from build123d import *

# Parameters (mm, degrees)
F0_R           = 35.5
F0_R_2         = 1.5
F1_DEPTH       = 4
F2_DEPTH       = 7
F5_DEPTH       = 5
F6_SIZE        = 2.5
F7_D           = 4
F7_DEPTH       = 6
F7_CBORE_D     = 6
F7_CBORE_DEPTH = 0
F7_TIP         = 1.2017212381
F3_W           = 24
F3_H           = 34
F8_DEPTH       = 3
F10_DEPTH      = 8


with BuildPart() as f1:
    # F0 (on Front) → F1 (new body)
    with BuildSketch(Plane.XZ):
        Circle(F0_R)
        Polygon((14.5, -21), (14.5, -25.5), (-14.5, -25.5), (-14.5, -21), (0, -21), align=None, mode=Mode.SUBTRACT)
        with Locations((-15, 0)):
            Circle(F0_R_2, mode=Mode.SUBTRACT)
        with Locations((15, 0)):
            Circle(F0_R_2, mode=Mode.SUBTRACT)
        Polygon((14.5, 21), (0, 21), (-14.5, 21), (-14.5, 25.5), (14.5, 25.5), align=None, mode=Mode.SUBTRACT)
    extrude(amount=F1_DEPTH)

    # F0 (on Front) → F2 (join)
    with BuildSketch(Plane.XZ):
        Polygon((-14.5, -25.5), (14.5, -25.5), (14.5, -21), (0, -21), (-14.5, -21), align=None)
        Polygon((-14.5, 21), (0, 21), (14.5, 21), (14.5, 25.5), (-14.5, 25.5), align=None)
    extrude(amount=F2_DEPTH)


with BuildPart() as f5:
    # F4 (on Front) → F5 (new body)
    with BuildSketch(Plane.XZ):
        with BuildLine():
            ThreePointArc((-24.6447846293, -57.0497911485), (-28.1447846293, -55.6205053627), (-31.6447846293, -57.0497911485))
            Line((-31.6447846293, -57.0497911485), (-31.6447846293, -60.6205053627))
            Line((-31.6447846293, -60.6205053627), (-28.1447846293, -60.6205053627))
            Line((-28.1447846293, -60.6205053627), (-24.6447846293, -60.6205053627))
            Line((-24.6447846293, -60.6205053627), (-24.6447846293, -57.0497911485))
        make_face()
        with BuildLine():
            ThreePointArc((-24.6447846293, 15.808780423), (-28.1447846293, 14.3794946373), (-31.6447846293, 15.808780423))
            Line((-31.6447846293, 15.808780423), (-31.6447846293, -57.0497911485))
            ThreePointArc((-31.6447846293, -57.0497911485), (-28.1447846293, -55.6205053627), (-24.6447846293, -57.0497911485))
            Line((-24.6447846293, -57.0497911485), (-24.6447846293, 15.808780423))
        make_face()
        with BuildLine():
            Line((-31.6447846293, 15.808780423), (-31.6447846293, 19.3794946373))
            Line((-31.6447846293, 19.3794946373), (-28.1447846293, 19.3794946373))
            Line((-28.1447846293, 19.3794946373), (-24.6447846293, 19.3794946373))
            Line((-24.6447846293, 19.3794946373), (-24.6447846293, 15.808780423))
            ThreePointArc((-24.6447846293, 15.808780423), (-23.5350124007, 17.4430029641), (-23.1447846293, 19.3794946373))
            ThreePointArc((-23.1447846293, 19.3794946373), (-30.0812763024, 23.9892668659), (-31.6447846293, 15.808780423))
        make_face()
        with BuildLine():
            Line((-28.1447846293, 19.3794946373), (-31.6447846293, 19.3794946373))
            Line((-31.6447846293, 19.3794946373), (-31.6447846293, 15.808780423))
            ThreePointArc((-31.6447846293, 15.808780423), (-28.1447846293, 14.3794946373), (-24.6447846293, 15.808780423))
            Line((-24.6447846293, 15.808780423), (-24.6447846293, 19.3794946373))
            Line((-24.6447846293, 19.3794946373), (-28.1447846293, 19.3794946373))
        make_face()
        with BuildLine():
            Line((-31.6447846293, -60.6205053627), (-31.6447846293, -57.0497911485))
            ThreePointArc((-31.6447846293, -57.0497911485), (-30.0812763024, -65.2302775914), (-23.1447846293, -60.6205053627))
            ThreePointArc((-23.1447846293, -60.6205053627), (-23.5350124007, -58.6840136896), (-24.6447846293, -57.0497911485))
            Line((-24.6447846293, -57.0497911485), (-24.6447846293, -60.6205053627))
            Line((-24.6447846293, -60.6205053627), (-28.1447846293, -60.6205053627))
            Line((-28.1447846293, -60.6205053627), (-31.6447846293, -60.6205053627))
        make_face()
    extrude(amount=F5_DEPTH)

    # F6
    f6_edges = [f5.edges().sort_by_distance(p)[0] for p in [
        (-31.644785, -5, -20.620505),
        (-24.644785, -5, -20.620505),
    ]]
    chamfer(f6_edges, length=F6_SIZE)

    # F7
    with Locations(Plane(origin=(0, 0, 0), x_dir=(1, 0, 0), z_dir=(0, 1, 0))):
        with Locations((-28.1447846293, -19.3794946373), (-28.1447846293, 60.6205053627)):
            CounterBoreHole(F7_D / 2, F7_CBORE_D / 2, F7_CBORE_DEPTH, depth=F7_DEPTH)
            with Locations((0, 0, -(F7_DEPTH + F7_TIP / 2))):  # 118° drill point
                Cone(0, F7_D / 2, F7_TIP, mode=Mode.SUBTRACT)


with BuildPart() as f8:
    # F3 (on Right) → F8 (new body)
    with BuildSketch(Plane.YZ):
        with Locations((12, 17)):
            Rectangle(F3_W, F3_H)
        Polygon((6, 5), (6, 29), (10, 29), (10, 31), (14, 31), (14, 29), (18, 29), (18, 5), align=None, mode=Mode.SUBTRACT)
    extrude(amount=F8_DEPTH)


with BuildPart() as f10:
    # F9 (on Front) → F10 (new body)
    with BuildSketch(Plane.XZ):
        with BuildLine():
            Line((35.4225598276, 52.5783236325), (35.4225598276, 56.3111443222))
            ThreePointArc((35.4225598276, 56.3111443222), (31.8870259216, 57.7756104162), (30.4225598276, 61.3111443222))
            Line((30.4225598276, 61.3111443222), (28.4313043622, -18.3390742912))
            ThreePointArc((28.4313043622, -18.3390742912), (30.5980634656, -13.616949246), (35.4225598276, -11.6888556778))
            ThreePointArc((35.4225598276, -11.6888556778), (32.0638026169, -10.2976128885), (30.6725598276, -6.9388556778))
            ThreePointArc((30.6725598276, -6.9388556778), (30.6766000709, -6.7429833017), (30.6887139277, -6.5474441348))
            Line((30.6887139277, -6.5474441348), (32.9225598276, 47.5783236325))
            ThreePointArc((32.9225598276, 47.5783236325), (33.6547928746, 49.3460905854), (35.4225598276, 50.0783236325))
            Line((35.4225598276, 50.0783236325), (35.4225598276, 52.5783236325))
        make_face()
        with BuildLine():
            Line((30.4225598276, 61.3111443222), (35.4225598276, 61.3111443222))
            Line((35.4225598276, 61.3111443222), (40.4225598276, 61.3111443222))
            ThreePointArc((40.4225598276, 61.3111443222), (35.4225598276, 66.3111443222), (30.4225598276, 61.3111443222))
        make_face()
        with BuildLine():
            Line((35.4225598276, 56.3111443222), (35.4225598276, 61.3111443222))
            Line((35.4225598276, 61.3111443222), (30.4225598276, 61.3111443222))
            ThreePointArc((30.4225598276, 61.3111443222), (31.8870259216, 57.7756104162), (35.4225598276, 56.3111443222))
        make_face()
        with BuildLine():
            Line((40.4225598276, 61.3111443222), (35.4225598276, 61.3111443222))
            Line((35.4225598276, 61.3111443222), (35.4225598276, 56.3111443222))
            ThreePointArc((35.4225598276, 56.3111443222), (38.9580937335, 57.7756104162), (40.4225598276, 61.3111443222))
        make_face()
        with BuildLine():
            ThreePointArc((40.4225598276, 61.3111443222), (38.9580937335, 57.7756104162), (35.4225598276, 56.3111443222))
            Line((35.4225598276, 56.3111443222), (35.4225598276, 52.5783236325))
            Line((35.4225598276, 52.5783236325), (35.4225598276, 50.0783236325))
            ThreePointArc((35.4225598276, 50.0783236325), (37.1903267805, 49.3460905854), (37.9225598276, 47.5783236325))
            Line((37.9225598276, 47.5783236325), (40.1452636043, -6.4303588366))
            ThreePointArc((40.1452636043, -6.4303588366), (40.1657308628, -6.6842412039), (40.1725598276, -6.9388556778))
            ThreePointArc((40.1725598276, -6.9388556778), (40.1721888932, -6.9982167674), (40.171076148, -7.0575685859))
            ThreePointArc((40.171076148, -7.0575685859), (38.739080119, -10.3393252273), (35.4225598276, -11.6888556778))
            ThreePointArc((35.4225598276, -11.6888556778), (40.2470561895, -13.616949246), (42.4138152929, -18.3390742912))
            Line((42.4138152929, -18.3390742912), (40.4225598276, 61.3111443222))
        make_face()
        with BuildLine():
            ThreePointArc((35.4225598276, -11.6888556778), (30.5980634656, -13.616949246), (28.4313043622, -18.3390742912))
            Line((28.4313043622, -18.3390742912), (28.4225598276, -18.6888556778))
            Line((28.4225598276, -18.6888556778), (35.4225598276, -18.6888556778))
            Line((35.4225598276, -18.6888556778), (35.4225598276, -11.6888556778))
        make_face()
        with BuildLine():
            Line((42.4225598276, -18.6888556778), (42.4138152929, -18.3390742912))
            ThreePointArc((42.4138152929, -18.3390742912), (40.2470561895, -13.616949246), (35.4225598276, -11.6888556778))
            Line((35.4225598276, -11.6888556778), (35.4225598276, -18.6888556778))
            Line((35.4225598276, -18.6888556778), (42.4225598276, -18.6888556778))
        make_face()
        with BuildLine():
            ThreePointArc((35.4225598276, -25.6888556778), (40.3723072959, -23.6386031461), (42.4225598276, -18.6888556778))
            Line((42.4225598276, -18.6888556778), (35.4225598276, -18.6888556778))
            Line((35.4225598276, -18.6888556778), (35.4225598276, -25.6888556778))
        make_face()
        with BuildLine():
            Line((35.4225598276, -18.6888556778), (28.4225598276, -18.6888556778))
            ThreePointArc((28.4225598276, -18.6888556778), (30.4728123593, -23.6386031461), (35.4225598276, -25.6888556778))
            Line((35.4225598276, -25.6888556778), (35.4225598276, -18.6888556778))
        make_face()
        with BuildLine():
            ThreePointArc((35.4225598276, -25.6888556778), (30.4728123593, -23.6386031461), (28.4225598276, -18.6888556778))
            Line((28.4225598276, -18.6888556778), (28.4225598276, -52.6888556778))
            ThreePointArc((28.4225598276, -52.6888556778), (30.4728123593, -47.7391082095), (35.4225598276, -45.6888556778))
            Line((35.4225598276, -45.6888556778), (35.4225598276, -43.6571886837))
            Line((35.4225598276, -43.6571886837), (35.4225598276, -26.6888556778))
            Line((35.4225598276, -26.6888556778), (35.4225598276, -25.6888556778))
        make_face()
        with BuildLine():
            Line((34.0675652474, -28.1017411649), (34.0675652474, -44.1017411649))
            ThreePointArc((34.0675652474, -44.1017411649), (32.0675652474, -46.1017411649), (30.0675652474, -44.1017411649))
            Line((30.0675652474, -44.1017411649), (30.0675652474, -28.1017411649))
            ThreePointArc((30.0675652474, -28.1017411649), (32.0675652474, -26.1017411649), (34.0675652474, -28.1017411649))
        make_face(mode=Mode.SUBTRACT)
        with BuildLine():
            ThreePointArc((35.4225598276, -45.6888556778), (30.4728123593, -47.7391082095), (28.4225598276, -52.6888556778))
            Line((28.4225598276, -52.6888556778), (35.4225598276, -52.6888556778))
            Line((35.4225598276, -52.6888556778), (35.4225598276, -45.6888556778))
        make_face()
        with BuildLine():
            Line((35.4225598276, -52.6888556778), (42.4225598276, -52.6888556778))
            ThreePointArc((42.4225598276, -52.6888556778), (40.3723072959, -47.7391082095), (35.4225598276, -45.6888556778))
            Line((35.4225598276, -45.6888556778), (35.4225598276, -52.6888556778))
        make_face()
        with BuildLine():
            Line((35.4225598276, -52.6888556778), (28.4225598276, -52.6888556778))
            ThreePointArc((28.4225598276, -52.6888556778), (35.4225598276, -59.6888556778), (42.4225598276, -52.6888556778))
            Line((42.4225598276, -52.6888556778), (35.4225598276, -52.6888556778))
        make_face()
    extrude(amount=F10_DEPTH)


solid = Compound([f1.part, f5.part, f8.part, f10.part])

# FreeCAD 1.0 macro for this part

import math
import FreeCAD as App
import Part
import Sketcher
from FreeCAD import Vector
Q = App.Units.Quantity


def edges_at(feature, points):
    """Names of the edges that pass closest to the given points."""
    edges = feature.Shape.Edges
    near = lambda p: min(range(len(edges)), key=lambda i: edges[i].distToShape(Part.Vertex(*p))[0])
    return sorted({f"Edge{near(p) + 1}" for p in points})


def add_polygon(sketch, points):
    """Adds a closed chain of lines whose ends are joined by coincident constraints."""
    first, n = sketch.GeometryCount, len(points)
    for a, b in zip(points, points[1:] + points[:1]):
        sketch.addGeometry(Part.LineSegment(App.Vector(*a, 0), App.Vector(*b, 0)), False)
    for i in range(n):
        sketch.addConstraint(Sketcher.Constraint("Coincident", first + i, 2, first + (i + 1) % n, 1))

doc = App.newDocument("Part")
body = doc.addObject("PartDesign::Body", "Body")

sketch1 = body.newObject("Sketcher::SketchObject", "Sketch")
sketch1.AttachmentSupport = (doc.getObject("XZ_Plane"), [""])
sketch1.MapMode = "FlatFace"
sketch1.addGeometry(Part.Circle(Vector(0, 0, 0), Vector(0, 0, 1), 35.5), False)
add_polygon(sketch1, [(-14.5, -21), (14.5, -21), (14.5, -25.5), (-14.5, -25.5)])
sketch1.addGeometry(Part.Circle(Vector(-15, 0, 0), Vector(0, 0, 1), 1.5), False)
sketch1.addGeometry(Part.Circle(Vector(15, 0, 0), Vector(0, 0, 1), 1.5), False)
add_polygon(sketch1, [(14.5, 25.5), (14.5, 21), (-14.5, 21), (-14.5, 25.5)])
sketch1.addConstraint([
    Sketcher.Constraint("Horizontal", 1),
    Sketcher.Constraint("Vertical", 2),
    Sketcher.Constraint("Horizontal", 3),
    Sketcher.Constraint("Vertical", 4),
    Sketcher.Constraint("Vertical", 7),
    Sketcher.Constraint("Horizontal", 8),
    Sketcher.Constraint("Vertical", 9),
    Sketcher.Constraint("Horizontal", 10),
    Sketcher.Constraint("Coincident", 0, 3, -1, 1),
    Sketcher.Constraint("Equal", 5, 6),
    Sketcher.Constraint("Symmetric", 5, 3, 6, 3, -1, 1),
    Sketcher.Constraint("Symmetric", 4, 2, 7, 2, -1, 1),
    Sketcher.Constraint("Symmetric", 2, 2, 9, 2, -1, 1),
    Sketcher.Constraint("PointOnObject", 5, 3, -1),
    Sketcher.Constraint("Vertical", 2, 2, 7, 2),
    Sketcher.Constraint("Diameter", 0, Q("71 mm")),
    Sketcher.Constraint("Diameter", 5, Q("3 mm")),
    Sketcher.Constraint("DistanceX", 1, 1, 1, 2, Q("29 mm")),
    Sketcher.Constraint("DistanceY", 2, 2, 2, 1, Q("4.5 mm")),
    Sketcher.Constraint("DistanceX", 5, 3, -1, 1, Q("15 mm")),
    Sketcher.Constraint("DistanceY", 1, 2, -1, 1, Q("21 mm")),
])
pad1 = body.newObject("PartDesign::Pad", "Pad")
pad1.Profile = sketch1
pad1.Length = 4

sketch2 = body.newObject("Sketcher::SketchObject", "Sketch001")
sketch2.AttachmentSupport = (doc.getObject("XZ_Plane"), [""])
sketch2.MapMode = "FlatFace"
add_polygon(sketch2, [(-14.5, -25.5), (14.5, -25.5), (14.5, -21), (-14.5, -21)])
add_polygon(sketch2, [(-14.5, 21), (14.5, 21), (14.5, 25.5), (-14.5, 25.5)])
sketch2.addConstraint([
    Sketcher.Constraint("Horizontal", 0),
    Sketcher.Constraint("Vertical", 1),
    Sketcher.Constraint("Horizontal", 2),
    Sketcher.Constraint("Vertical", 3),
    Sketcher.Constraint("Horizontal", 4),
    Sketcher.Constraint("Vertical", 5),
    Sketcher.Constraint("Horizontal", 6),
    Sketcher.Constraint("Vertical", 7),
    Sketcher.Constraint("Symmetric", 2, 2, 4, 2, -1, 1),
    Sketcher.Constraint("Symmetric", 0, 2, 6, 2, -1, 1),
    Sketcher.Constraint("Vertical", 1, 2, 4, 2),
    Sketcher.Constraint("DistanceX", 0, 1, 0, 2, Q("29 mm")),
    Sketcher.Constraint("DistanceY", 1, 1, 1, 2, Q("4.5 mm")),
    Sketcher.Constraint("DistanceY", 1, 2, -1, 1, Q("21 mm")),
])
pad2 = body.newObject("PartDesign::Pad", "Pad001")
pad2.Profile = sketch2
pad2.Length = 7
body2 = doc.addObject("PartDesign::Body", "Body001")

sketch3 = body2.newObject("Sketcher::SketchObject", "Sketch002")
sketch3.AttachmentSupport = (doc.getObject("XZ_Plane001"), [""])
sketch3.MapMode = "FlatFace"
sketch3.addGeometry([
    Part.LineSegment(Vector(-24.6, -57, 0), Vector(-24.6, 15.8, 0)),
    Part.ArcOfCircle(Part.Circle(Vector(-28.1, 19.4, 0), Vector(0, 0, 1), 5), math.radians(-46), math.radians(0)),
    Part.ArcOfCircle(Part.Circle(Vector(-28.1, 19.4, 0), Vector(0, 0, 1), 5), math.radians(0), math.radians(226)),
    Part.LineSegment(Vector(-31.6, 15.8, 0), Vector(-31.6, -57, 0)),
    Part.ArcOfCircle(Part.Circle(Vector(-28.1, -60.6, 0), Vector(0, 0, 1), 5), math.radians(134), math.radians(360)),
    Part.ArcOfCircle(Part.Circle(Vector(-28.1, -60.6, 0), Vector(0, 0, 1), 5), math.radians(0), math.radians(46)),
], False)
sketch3.addConstraint([
    Sketcher.Constraint("Coincident", 0, 2, 1, 1),
    Sketcher.Constraint("Tangent", 1, 2, 2, 1),
    Sketcher.Constraint("Coincident", 2, 2, 3, 1),
    Sketcher.Constraint("Coincident", 3, 2, 4, 1),
    Sketcher.Constraint("Tangent", 4, 2, 5, 1),
    Sketcher.Constraint("Coincident", 5, 2, 0, 1),
    Sketcher.Constraint("Vertical", 0),
    Sketcher.Constraint("Vertical", 3),
    Sketcher.Constraint("Equal", 1, 2),
    Sketcher.Constraint("Equal", 2, 4),
    Sketcher.Constraint("Equal", 4, 5),
    Sketcher.Constraint("Horizontal", 2, 3, 1, 2),
    Sketcher.Constraint("Horizontal", 0, 2, 2, 2),
    Sketcher.Constraint("Horizontal", 5, 3, 4, 2),
    Sketcher.Constraint("Horizontal", 3, 2, 5, 2),
    Sketcher.Constraint("Radius", 1, Q("5 mm")),
    Sketcher.Constraint("DistanceY", 4, 3, 1, 3, Q("80 mm")),
    Sketcher.Constraint("DistanceX", 2, 2, 0, 2, Q("7 mm")),
    Sketcher.Constraint("DistanceY", -1, 1, 0, 2, Q("15.80878 mm")),
    Sketcher.Constraint("DistanceX", 1, 3, -1, 1, Q("28.144785 mm")),
])
pad3 = body2.newObject("PartDesign::Pad", "Pad002")
pad3.Profile = sketch3
pad3.Length = 5
doc.recompute()

chamfer = body2.newObject("PartDesign::Chamfer", "Chamfer")
chamfer.Base = (pad3, edges_at(pad3, [(-31.645, -5, -20.621), (-24.645, -5, -20.621)]))
chamfer.Size = 2.5

sketch4 = body2.newObject("Sketcher::SketchObject", "Sketch003")
sketch4.AttachmentSupport = (doc.getObject("XZ_Plane001"), [""])
sketch4.MapMode = "FlatFace"
sketch4.addGeometry([
    Part.Circle(Vector(-28.1, 19.4, 0), Vector(0, 0, 1), 2),
    Part.Circle(Vector(-28.1, -60.6, 0), Vector(0, 0, 1), 2),
], False)
sketch4.addConstraint([
    Sketcher.Constraint("Equal", 0, 1),
    Sketcher.Constraint("Vertical", 0, 3, 1, 3),
    Sketcher.Constraint("Diameter", 0, Q("4 mm")),
    Sketcher.Constraint("DistanceY", 1, 3, 0, 3, Q("80 mm")),
    Sketcher.Constraint("DistanceX", 0, 3, -1, 1, Q("28.144785 mm")),
    Sketcher.Constraint("DistanceY", -1, 1, 0, 3, Q("19.379495 mm")),
])
doc.recompute()
hole = body2.newObject("PartDesign::Hole", "Hole")
hole.Profile = sketch4
hole.ThreadType = "None"
hole.Diameter = 4
hole.DepthType = "Dimension"
hole.Depth = 6
hole.DrillPoint = "Angled"
hole.DrillPointAngle = 118
hole.HoleCutType = "Counterbore"
hole.HoleCutDiameter = 6
hole.HoleCutDepth = 0
hole.Reversed = True
body3 = doc.addObject("PartDesign::Body", "Body002")

sketch5 = body3.newObject("Sketcher::SketchObject", "Sketch004")
sketch5.AttachmentSupport = (doc.getObject("YZ_Plane002"), [""])
sketch5.MapMode = "FlatFace"
add_polygon(sketch5, [(0, 34), (0, 0), (24, 0), (24, 34)])
add_polygon(sketch5, [(18, 5), (6, 5), (6, 29), (10, 29), (10, 31), (14, 31), (14, 29), (18, 29)])
sketch5.addConstraint([
    Sketcher.Constraint("Vertical", 0),
    Sketcher.Constraint("Horizontal", 1),
    Sketcher.Constraint("Vertical", 2),
    Sketcher.Constraint("Horizontal", 3),
    Sketcher.Constraint("Horizontal", 4),
    Sketcher.Constraint("Vertical", 5),
    Sketcher.Constraint("Horizontal", 6),
    Sketcher.Constraint("Vertical", 7),
    Sketcher.Constraint("Horizontal", 8),
    Sketcher.Constraint("Vertical", 9),
    Sketcher.Constraint("Horizontal", 10),
    Sketcher.Constraint("Vertical", 11),
    Sketcher.Constraint("Coincident", 0, 2, -1, 1),
    Sketcher.Constraint("Horizontal", 6, 2, 9, 2),
    Sketcher.Constraint("Equal", 6, 8),
    Sketcher.Constraint("Equal", 8, 10),
    Sketcher.Constraint("Equal", 3, 5),
    Sketcher.Constraint("DistanceX", 1, 1, 1, 2, Q("24 mm")),
    Sketcher.Constraint("DistanceX", 4, 2, 4, 1, Q("12 mm")),
    Sketcher.Constraint("DistanceY", 0, 2, 0, 1, Q("34 mm")),
    Sketcher.Constraint("DistanceY", 7, 1, 7, 2, Q("2 mm")),
    Sketcher.Constraint("DistanceX", -1, 1, 4, 2, Q("6 mm")),
    Sketcher.Constraint("DistanceY", -1, 1, 4, 2, Q("5 mm")),
])
pad4 = body3.newObject("PartDesign::Pad", "Pad003")
pad4.Profile = sketch5
pad4.Length = 3
body4 = doc.addObject("PartDesign::Body", "Body003")

sketch6 = body4.newObject("Sketcher::SketchObject", "Sketch005")
sketch6.AttachmentSupport = (doc.getObject("XZ_Plane003"), [""])
sketch6.MapMode = "FlatFace"
sketch6.addGeometry([
    Part.ArcOfCircle(Part.Circle(Vector(35.42, -18.69, 0), Vector(0, 0, 1), 7), math.radians(-90), math.radians(0)),
    Part.LineSegment(Vector(42.42, -18.69, 0), Vector(42.41, -18.34, 0)),
    Part.LineSegment(Vector(42.41, -18.34, 0), Vector(40.42, 61.31, 0)),
    Part.ArcOfCircle(Part.Circle(Vector(35.42, 61.31, 0), Vector(0, 0, 1), 5), math.radians(0), math.radians(180)),
    Part.LineSegment(Vector(30.42, 61.31, 0), Vector(28.43, -18.34, 0)),
    Part.LineSegment(Vector(28.43, -18.34, 0), Vector(28.42, -18.69, 0)),
    Part.LineSegment(Vector(28.42, -18.69, 0), Vector(28.42, -52.69, 0)),
    Part.ArcOfCircle(Part.Circle(Vector(35.42, -52.69, 0), Vector(0, 0, 1), 7), math.radians(180), math.radians(360)),
    Part.ArcOfCircle(Part.Circle(Vector(35.42, -52.69, 0), Vector(0, 0, 1), 7), math.radians(0), math.radians(90)),
    Part.LineSegment(Vector(35.42, -45.69, 0), Vector(35.42, -25.69, 0)),
    Part.ArcOfCircle(Part.Circle(Vector(32.07, -28.1, 0), Vector(0, 0, 1), 2), math.radians(0), math.radians(180)),
    Part.LineSegment(Vector(34.07, -28.1, 0), Vector(34.07, -44.1, 0)),
    Part.ArcOfCircle(Part.Circle(Vector(32.07, -44.1, 0), Vector(0, 0, 1), 2), math.radians(180), math.radians(360)),
    Part.LineSegment(Vector(30.07, -44.1, 0), Vector(30.07, -28.1, 0)),
    Part.ArcOfCircle(Part.Circle(Vector(35.42, -6.94, 0), Vector(0, 0, 1), 4.75), math.radians(-90), math.radians(-1)),
    Part.ArcOfCircle(Part.Circle(Vector(35.42, -6.94, 0), Vector(0, 0, 1), 4.75), math.radians(180), math.radians(270)),
    Part.ArcOfCircle(Part.Circle(Vector(35.42, -6.94, 0), Vector(0, 0, 1), 4.75), math.radians(175.27), math.radians(180)),
    Part.LineSegment(Vector(30.69, -6.55, 0), Vector(32.92, 47.58, 0)),
    Part.ArcOfCircle(Part.Circle(Vector(35.42, 47.58, 0), Vector(0, 0, 1), 2.5), math.radians(90), math.radians(180)),
    Part.ArcOfCircle(Part.Circle(Vector(35.42, 47.58, 0), Vector(0, 0, 1), 2.5), math.radians(0), math.radians(90)),
    Part.LineSegment(Vector(37.92, 47.58, 0), Vector(40.15, -6.43, 0)),
    Part.ArcOfCircle(Part.Circle(Vector(35.42, -6.94, 0), Vector(0, 0, 1), 4.75), math.radians(0), math.radians(6.15)),
    Part.ArcOfCircle(Part.Circle(Vector(35.42, -6.94, 0), Vector(0, 0, 1), 4.75), math.radians(-1.43), math.radians(0)),
], False)
sketch6.addConstraint([
    Sketcher.Constraint("Coincident", 0, 2, 1, 1),
    Sketcher.Constraint("Coincident", 1, 2, 2, 1),
    Sketcher.Constraint("Coincident", 2, 2, 3, 1),
    Sketcher.Constraint("Coincident", 3, 2, 4, 1),
    Sketcher.Constraint("Coincident", 4, 2, 5, 1),
    Sketcher.Constraint("Coincident", 5, 2, 6, 1),
    Sketcher.Constraint("Tangent", 6, 2, 7, 1),
    Sketcher.Constraint("Tangent", 7, 2, 8, 1),
    Sketcher.Constraint("Coincident", 8, 2, 9, 1),
    Sketcher.Constraint("Coincident", 9, 2, 0, 1),
    Sketcher.Constraint("Tangent", 10, 1, 11, 1),
    Sketcher.Constraint("Tangent", 11, 2, 12, 2),
    Sketcher.Constraint("Tangent", 12, 1, 13, 1),
    Sketcher.Constraint("Tangent", 13, 2, 10, 2),
    Sketcher.Constraint("Tangent", 14, 1, 15, 2),
    Sketcher.Constraint("Tangent", 15, 1, 16, 2),
    Sketcher.Constraint("Coincident", 16, 1, 17, 1),
    Sketcher.Constraint("Coincident", 17, 2, 18, 2),
    Sketcher.Constraint("Tangent", 18, 1, 19, 2),
    Sketcher.Constraint("Coincident", 19, 1, 20, 1),
    Sketcher.Constraint("Coincident", 20, 2, 21, 2),
    Sketcher.Constraint("Tangent", 21, 1, 22, 2),
    Sketcher.Constraint("Tangent", 22, 1, 14, 2),
    Sketcher.Constraint("Vertical", 6),
    Sketcher.Constraint("Vertical", 9),
    Sketcher.Constraint("Vertical", 11),
    Sketcher.Constraint("Vertical", 13),
    Sketcher.Constraint("Coincident", 16, 3, 14, 3),
    Sketcher.Constraint("Coincident", 21, 3, 14, 3),
    Sketcher.Constraint("Equal", 0, 7),
    Sketcher.Constraint("Equal", 7, 8),
    Sketcher.Constraint("Equal", 18, 19),
    Sketcher.Constraint("Parallel", 1, 2),
    Sketcher.Constraint("Parallel", 4, 5),
    Sketcher.Constraint("Horizontal", 3, 3, 2, 2),
    Sketcher.Constraint("Horizontal", 2, 2, 3, 2),
    Sketcher.Constraint("Horizontal", 1, 2, 4, 2),
    Sketcher.Constraint("Horizontal", 0, 2, 5, 2),
    Sketcher.Constraint("Horizontal", 6, 2, 7, 2),
    Sketcher.Constraint("Horizontal", 22, 3, 15, 1),
    Sketcher.Constraint("Horizontal", 19, 3, 17, 2),
    Sketcher.Constraint("Horizontal", 17, 2, 19, 1),
    Sketcher.Constraint("Horizontal", 15, 1, 21, 1),
    Sketcher.Constraint("Vertical", 0, 3, 3, 3),
    Sketcher.Constraint("Vertical", 3, 3, 7, 3),
    Sketcher.Constraint("Vertical", 8, 3, 14, 3),
    Sketcher.Constraint("Vertical", 16, 3, 18, 3),
    Sketcher.Constraint("Vertical", 22, 3, 8, 2),
    Sketcher.Constraint("Vertical", 9, 2, 14, 1),
    Sketcher.Constraint("Vertical", 14, 1, 18, 1),
    Sketcher.Constraint("Radius", 0, Q("7 mm")),
    Sketcher.Constraint("Radius", 3, Q("5 mm")),
    Sketcher.Constraint("Radius", 10, Q("2 mm")),
    Sketcher.Constraint("Radius", 18, Q("2.5 mm")),
    Sketcher.Constraint("DistanceY", 6, 2, 6, 1, Q("34 mm")),
    Sketcher.Constraint("DistanceY", 9, 1, 9, 2, Q("20 mm")),
    Sketcher.Constraint("DistanceY", 11, 2, 11, 1, Q("16 mm")),
    Sketcher.Constraint("Radius", 14, Q("4.75 mm")),
    Sketcher.Constraint("DistanceY", 0, 3, 3, 3, Q("80 mm")),
    Sketcher.Constraint("DistanceY", 0, 3, 14, 3, Q("11.75 mm")),
    Sketcher.Constraint("Distance", 20, Q("54.0544 mm")),
    Sketcher.Constraint("Distance", 1, Q("0.349891 mm")),
    Sketcher.Constraint("DistanceX", -1, 1, 0, 3, Q("35.42256 mm")),
    Sketcher.Constraint("DistanceY", 10, 3, -1, 1, Q("28.101741 mm")),
    Sketcher.Constraint("DistanceY", 20, 2, -1, 1, Q("6.430359 mm")),
    Sketcher.Constraint("DistanceY", 22, 1, -1, 1, Q("7.057569 mm")),
    Sketcher.Constraint("DistanceY", 18, 3, 3, 3, Q("13.732821 mm")),
    Sketcher.Constraint("DistanceX", 4, 2, 10, 3, Q("3.636261 mm")),
    Sketcher.Constraint("DistanceY", 15, 1, 16, 1, Q("0.391412 mm")),
])
pad5 = body4.newObject("PartDesign::Pad", "Pad004")
pad5.Profile = sketch6
pad5.Length = 8

doc.recompute()
